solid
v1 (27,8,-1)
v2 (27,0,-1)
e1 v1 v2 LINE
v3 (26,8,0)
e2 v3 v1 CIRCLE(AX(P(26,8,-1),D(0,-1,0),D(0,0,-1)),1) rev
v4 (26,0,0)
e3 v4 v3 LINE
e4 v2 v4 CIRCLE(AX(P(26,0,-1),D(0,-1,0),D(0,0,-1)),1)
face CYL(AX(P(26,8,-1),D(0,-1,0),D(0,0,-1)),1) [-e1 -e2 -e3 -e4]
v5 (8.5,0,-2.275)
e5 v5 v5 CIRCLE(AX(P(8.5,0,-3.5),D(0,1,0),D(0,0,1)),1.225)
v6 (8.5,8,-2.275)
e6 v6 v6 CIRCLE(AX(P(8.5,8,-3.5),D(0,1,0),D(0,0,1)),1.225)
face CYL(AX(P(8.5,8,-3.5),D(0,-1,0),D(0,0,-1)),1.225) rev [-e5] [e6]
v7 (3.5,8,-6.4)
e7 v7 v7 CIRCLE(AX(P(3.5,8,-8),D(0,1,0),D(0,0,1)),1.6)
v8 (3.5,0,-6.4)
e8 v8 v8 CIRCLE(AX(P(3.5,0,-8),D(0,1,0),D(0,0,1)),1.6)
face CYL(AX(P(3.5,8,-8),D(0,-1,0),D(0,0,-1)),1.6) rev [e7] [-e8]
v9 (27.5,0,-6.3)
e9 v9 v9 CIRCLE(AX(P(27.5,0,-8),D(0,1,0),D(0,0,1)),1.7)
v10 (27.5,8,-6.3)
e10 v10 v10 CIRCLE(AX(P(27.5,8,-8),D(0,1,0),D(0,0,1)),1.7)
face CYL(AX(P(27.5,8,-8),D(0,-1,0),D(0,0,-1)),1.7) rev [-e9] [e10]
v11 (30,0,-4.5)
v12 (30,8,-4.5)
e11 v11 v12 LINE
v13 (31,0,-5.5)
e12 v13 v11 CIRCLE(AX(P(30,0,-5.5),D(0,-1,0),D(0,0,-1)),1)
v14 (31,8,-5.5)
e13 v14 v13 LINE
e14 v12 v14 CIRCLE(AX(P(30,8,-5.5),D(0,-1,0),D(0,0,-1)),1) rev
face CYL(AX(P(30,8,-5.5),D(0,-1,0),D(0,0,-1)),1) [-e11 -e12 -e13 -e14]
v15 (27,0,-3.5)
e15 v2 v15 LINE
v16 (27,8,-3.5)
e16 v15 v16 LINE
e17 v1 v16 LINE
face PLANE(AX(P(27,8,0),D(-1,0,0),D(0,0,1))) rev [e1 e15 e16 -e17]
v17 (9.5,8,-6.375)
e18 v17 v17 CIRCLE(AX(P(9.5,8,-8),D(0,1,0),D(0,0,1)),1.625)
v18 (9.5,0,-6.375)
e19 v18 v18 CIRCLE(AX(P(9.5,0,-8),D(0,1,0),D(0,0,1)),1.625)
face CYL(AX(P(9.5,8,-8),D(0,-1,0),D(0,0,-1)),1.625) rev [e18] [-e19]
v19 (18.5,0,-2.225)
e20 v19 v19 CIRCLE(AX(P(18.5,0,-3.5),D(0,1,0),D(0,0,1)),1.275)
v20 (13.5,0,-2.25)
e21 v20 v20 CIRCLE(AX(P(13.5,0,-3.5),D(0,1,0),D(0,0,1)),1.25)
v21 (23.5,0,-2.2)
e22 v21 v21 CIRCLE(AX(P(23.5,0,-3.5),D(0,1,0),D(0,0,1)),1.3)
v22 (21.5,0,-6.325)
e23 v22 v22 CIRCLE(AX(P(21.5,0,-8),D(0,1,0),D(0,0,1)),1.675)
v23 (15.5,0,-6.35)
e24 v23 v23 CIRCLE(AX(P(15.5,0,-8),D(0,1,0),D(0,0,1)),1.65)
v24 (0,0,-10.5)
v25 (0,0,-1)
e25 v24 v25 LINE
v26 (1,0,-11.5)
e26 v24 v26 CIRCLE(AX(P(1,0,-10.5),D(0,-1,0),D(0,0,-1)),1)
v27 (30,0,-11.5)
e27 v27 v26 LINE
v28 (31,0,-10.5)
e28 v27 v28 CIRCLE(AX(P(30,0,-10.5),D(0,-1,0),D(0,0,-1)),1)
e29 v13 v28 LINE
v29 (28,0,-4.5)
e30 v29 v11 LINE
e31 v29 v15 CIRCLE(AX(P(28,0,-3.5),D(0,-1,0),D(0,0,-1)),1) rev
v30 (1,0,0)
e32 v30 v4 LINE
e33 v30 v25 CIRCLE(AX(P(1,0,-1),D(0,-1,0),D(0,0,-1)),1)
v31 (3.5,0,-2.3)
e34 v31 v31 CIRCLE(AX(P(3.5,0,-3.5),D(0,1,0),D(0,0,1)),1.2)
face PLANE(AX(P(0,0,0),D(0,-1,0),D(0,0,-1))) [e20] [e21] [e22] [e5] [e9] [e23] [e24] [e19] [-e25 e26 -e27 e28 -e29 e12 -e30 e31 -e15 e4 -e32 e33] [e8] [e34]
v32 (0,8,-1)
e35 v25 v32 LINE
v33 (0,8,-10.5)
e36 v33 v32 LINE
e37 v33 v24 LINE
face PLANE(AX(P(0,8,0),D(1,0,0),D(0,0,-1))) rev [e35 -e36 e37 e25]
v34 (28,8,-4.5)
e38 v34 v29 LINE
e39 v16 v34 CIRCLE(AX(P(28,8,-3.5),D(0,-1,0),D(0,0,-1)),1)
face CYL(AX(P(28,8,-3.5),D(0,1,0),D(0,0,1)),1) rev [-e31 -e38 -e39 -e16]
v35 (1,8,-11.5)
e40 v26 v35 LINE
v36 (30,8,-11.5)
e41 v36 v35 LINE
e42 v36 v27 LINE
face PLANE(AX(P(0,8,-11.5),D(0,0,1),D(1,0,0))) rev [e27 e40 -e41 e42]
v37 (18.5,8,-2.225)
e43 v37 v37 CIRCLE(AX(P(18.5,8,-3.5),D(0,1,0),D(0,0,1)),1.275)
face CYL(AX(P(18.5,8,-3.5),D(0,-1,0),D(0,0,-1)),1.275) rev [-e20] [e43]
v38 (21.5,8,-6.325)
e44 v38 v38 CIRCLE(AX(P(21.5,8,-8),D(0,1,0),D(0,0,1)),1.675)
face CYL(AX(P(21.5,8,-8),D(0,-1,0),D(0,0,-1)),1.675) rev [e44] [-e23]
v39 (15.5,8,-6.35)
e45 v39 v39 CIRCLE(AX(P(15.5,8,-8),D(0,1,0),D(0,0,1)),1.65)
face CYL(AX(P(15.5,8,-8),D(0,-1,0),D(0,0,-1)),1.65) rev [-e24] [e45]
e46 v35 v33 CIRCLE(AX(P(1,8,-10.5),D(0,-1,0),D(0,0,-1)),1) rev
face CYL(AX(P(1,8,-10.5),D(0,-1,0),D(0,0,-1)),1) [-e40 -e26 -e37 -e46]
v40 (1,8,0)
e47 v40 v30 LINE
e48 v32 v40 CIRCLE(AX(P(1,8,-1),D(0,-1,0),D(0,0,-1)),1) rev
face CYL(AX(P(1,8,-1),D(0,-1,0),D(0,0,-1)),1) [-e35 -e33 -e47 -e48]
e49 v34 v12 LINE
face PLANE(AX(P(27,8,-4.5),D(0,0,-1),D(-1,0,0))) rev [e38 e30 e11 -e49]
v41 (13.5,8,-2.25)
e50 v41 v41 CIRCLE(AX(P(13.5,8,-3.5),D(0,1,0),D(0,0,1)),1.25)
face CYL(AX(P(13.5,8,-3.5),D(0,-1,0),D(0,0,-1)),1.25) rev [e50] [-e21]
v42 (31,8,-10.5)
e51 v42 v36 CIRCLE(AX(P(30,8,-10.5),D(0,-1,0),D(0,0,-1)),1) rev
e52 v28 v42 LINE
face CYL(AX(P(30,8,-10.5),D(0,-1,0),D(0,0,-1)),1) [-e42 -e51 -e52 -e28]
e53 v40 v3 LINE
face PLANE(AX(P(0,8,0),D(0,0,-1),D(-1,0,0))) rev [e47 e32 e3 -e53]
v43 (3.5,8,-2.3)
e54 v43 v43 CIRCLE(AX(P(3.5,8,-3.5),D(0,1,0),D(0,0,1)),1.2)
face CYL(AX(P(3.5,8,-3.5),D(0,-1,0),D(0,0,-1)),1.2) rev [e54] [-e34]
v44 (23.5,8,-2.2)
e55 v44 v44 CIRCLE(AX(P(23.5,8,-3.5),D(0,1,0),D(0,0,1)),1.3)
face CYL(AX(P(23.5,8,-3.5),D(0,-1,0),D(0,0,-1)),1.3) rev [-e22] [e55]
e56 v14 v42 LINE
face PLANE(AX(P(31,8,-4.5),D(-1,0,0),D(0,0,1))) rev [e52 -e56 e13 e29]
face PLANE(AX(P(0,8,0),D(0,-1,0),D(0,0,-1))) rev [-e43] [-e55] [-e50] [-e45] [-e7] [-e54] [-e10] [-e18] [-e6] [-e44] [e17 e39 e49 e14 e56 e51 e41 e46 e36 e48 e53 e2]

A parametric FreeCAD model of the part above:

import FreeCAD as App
import Part
import Sketcher
from FreeCAD import Vector
Q = App.Units.Quantity


def edges_at(feature, points):
    """Names of the edges that pass closest to the given points."""
    edges = feature.Shape.Edges
    near = lambda p: min(range(len(edges)), key=lambda i: edges[i].distToShape(Part.Vertex(*p))[0])
    return sorted({f"Edge{near(p) + 1}" for p in points})

doc = App.newDocument("Part")
body = doc.addObject("PartDesign::Body", "Body")

# Sketch on XZ plane
sketch1 = doc.addObject("Sketcher::SketchObject", "Sketch")
body.addObject(sketch1)
sketch1.AttachmentSupport = (doc.XZ_Plane, [""])
sketch1.MapMode = "FlatFace"
sketch1.addGeometry(Part.LineSegment(Vector(0, 0, 0), Vector(27, 0, 0)), False)
sketch1.addGeometry(Part.LineSegment(Vector(27, 0, 0), Vector(27, -4.5, 0)), False)
sketch1.addGeometry(Part.LineSegment(Vector(27, -4.5, 0), Vector(31, -4.5, 0)), False)
sketch1.addGeometry(Part.LineSegment(Vector(31, -4.5, 0), Vector(31, -11.5, 0)), False)
sketch1.addGeometry(Part.LineSegment(Vector(31, -11.5, 0), Vector(0, -11.5, 0)), False)
sketch1.addGeometry(Part.LineSegment(Vector(0, -11.5, 0), Vector(0, 0, 0)), False)
sketch1.addGeometry(Part.Circle(Vector(3.5, -3.5, 0), Vector(0, 0, 1), 1.2), False)
sketch1.addGeometry(Part.Circle(Vector(8.5, -3.5, 0), Vector(0, 0, 1), 1.2), False)
sketch1.addGeometry(Part.Circle(Vector(13.5, -3.5, 0), Vector(0, 0, 1), 1.2), False)
sketch1.addGeometry(Part.Circle(Vector(18.5, -3.5, 0), Vector(0, 0, 1), 1.3), False)
sketch1.addGeometry(Part.Circle(Vector(23.5, -3.5, 0), Vector(0, 0, 1), 1.3), False)
sketch1.addGeometry(Part.Circle(Vector(3.5, -8, 0), Vector(0, 0, 1), 1.6), False)
sketch1.addGeometry(Part.Circle(Vector(9.5, -8, 0), Vector(0, 0, 1), 1.6), False)
sketch1.addGeometry(Part.Circle(Vector(15.5, -8, 0), Vector(0, 0, 1), 1.6), False)
sketch1.addGeometry(Part.Circle(Vector(21.5, -8, 0), Vector(0, 0, 1), 1.7), False)
sketch1.addGeometry(Part.Circle(Vector(27.5, -8, 0), Vector(0, 0, 1), 1.7), False)
sketch1.addConstraint(Sketcher.Constraint("Coincident", 0, 2, 1, 1))
sketch1.addConstraint(Sketcher.Constraint("Coincident", 1, 2, 2, 1))
sketch1.addConstraint(Sketcher.Constraint("Coincident", 2, 2, 3, 1))
sketch1.addConstraint(Sketcher.Constraint("Coincident", 3, 2, 4, 1))
sketch1.addConstraint(Sketcher.Constraint("Coincident", 4, 2, 5, 1))
sketch1.addConstraint(Sketcher.Constraint("Coincident", 5, 2, 0, 1))
sketch1.addConstraint(Sketcher.Constraint("Horizontal", 0))
sketch1.addConstraint(Sketcher.Constraint("Vertical", 1))
sketch1.addConstraint(Sketcher.Constraint("Horizontal", 2))
sketch1.addConstraint(Sketcher.Constraint("Vertical", 3))
sketch1.addConstraint(Sketcher.Constraint("Horizontal", 4))
sketch1.addConstraint(Sketcher.Constraint("Vertical", 5))
sketch1.addConstraint(Sketcher.Constraint("Coincident", 5, 2, -1, 1))
sketch1.addConstraint(Sketcher.Constraint("Horizontal", 6, 3, 7, 3))
sketch1.addConstraint(Sketcher.Constraint("Horizontal", 7, 3, 8, 3))
sketch1.addConstraint(Sketcher.Constraint("Horizontal", 8, 3, 9, 3))
sketch1.addConstraint(Sketcher.Constraint("Horizontal", 9, 3, 10, 3))
sketch1.addConstraint(Sketcher.Constraint("Horizontal", 11, 3, 12, 3))
sketch1.addConstraint(Sketcher.Constraint("Horizontal", 12, 3, 13, 3))
sketch1.addConstraint(Sketcher.Constraint("Horizontal", 13, 3, 14, 3))
sketch1.addConstraint(Sketcher.Constraint("Horizontal", 14, 3, 15, 3))
sketch1.addConstraint(Sketcher.Constraint("Vertical", 6, 3, 11, 3))
sketch1.addConstraint(Sketcher.Constraint("Diameter", 6, Q("2.4 mm")))
sketch1.addConstraint(Sketcher.Constraint("Diameter", 8, Q("2.5 mm")))
sketch1.addConstraint(Sketcher.Constraint("Diameter", 10, Q("2.6 mm")))
sketch1.addConstraint(Sketcher.Constraint("Diameter", 11, Q("3.2 mm")))
sketch1.addConstraint(Sketcher.Constraint("Diameter", 13, Q("3.3 mm")))
sketch1.addConstraint(Sketcher.Constraint("Diameter", 15, Q("3.4 mm")))
sketch1.addConstraint(Sketcher.Constraint("Diameter", 7, Q("2.45 mm")))
sketch1.addConstraint(Sketcher.Constraint("Diameter", 9, Q("2.55 mm")))
sketch1.addConstraint(Sketcher.Constraint("Diameter", 12, Q("3.25 mm")))
sketch1.addConstraint(Sketcher.Constraint("Diameter", 14, Q("3.35 mm")))
sketch1.addConstraint(Sketcher.Constraint("DistanceX", 0, 1, 0, 2, Q("27 mm")))
sketch1.addConstraint(Sketcher.Constraint("DistanceX", 2, 1, 2, 2, Q("4 mm")))
sketch1.addConstraint(Sketcher.Constraint("DistanceY", 3, 2, 3, 1, Q("7 mm")))
sketch1.addConstraint(Sketcher.Constraint("DistanceY", 1, 2, 1, 1, Q("4.5 mm")))
sketch1.addConstraint(Sketcher.Constraint("DistanceY", 11, 3, -1, 1, Q("8 mm")))
sketch1.addConstraint(Sketcher.Constraint("DistanceX", 6, 3, 7, 3, Q("5 mm")))
sketch1.addConstraint(Sketcher.Constraint("DistanceX", 7, 3, 8, 3, Q("5 mm")))
sketch1.addConstraint(Sketcher.Constraint("DistanceX", 8, 3, 9, 3, Q("5 mm")))
sketch1.addConstraint(Sketcher.Constraint("DistanceX", 9, 3, 10, 3, Q("5 mm")))
sketch1.addConstraint(Sketcher.Constraint("DistanceX", 7, 3, 12, 3, Q("1 mm")))
sketch1.addConstraint(Sketcher.Constraint("DistanceX", 8, 3, 13, 3, Q("2 mm")))
sketch1.addConstraint(Sketcher.Constraint("DistanceX", 14, 3, 10, 3, Q("2 mm")))
sketch1.addConstraint(Sketcher.Constraint("DistanceX", 14, 3, 15, 3, Q("6 mm")))
sketch1.addConstraint(Sketcher.Constraint("DistanceY", 1, 2, 10, 3, Q("1 mm")))
sketch1.addConstraint(Sketcher.Constraint("DistanceX", -1, 1, 6, 3, Q("3.5 mm")))
pad1 = doc.addObject("PartDesign::Pad", "Pad")
body.addObject(pad1)
pad1.Profile = sketch1
pad1.Length = 8
pad1.Reversed = True
doc.recompute()

fillet = doc.addObject("PartDesign::Fillet", "Fillet")
body.addObject(fillet)
fillet.Base = (pad1, edges_at(pad1, [
    (0, 4, -11.5),
    (31, 4, -11.5),
    (31, 4, -4.5),
    (27, 4, -4.5),
    (27, 4, 0),
    (0, 4, 0),
]))
fillet.Radius = 1

doc.recompute()
